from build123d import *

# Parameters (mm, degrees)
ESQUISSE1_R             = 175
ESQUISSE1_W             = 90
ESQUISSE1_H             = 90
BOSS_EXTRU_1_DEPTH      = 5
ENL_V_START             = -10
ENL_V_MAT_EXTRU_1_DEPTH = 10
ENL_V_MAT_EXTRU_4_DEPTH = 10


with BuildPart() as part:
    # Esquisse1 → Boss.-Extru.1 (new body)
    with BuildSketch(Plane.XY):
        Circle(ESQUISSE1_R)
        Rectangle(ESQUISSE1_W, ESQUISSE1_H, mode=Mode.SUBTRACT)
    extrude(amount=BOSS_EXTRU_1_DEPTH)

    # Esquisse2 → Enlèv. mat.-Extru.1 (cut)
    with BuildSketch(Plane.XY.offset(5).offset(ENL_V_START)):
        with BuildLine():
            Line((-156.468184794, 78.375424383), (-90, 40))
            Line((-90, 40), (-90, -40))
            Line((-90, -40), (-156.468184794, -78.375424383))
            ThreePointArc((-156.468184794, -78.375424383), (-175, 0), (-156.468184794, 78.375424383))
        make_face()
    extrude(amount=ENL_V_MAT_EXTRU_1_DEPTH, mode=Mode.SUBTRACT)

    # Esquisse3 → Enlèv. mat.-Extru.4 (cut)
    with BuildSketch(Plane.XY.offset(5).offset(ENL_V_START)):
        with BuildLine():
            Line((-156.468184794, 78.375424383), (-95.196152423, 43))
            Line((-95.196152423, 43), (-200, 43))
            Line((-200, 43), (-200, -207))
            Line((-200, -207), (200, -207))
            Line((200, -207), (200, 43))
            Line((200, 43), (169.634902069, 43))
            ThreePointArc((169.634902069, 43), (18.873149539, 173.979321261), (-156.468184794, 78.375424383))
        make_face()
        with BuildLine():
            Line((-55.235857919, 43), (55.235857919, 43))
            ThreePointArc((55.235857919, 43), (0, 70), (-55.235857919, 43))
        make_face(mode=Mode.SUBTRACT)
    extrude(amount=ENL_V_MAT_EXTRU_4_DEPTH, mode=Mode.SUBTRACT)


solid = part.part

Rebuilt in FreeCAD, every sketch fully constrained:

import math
import FreeCAD as App
import Part
import Sketcher
from FreeCAD import Vector
Q = App.Units.Quantity


def add_polygon(sketch, points):
    """Adds a closed chain of lines whose ends are joined by coincident constraints."""
    first, n = sketch.GeometryCount, len(points)
    for a, b in zip(points, points[1:] + points[:1]):
        sketch.addGeometry(Part.LineSegment(App.Vector(*a, 0), App.Vector(*b, 0)), False)
    for i in range(n):
        sketch.addConstraint(Sketcher.Constraint("Coincident", first + i, 2, first + (i + 1) % n, 1))

doc = App.newDocument("Part")
params = doc.addObject("Spreadsheet::Sheet", "Params")
for row, (alias, value) in enumerate([
    ("sketch1_diameter", "350 mm"),
    ("sketch1_width", "90 mm"),
    ("pad1_length", "5 mm"),
    ("sketch2_radius", "175 mm"),
    ("sketch2_height", "80 mm"),
    ("pocket1_length", "10 mm"),
    ("sketch3_radius", "175 mm"),
    ("sketch3_radius2", "70 mm"),
    ("sketch3_width", "400 mm"),
    ("sketch3_height", "250 mm"),
    ("pocket2_length", "10 mm"),
], start=1):
    params.set(f"A{row}", alias)
    params.set(f"B{row}", "=" + value)
    params.setAlias(f"B{row}", alias)

body = doc.addObject("PartDesign::Body", "Body")

# Sketch on XY plane
sketch1 = body.newObject("Sketcher::SketchObject", "Sketch")
sketch1.AttachmentSupport = (doc.getObject("XY_Plane"), [""])
sketch1.MapMode = "FlatFace"
sketch1.addGeometry(Part.Circle(Vector(0, 0, 0), Vector(0, 0, 1), 175), False)  # 0
add_polygon(sketch1, [(45, -45), (-45, -45), (-45, 45), (45, 45)])  # lines 1-4
sketch1.addConstraint([
    Sketcher.Constraint("Horizontal", 1),
    Sketcher.Constraint("Vertical", 2),
    Sketcher.Constraint("Horizontal", 3),
    Sketcher.Constraint("Vertical", 4),
    Sketcher.Constraint("Coincident", 0, 3, -1, 1),
    Sketcher.Constraint("Symmetric", 1, 2, 3, 2, -1, 1),
    Sketcher.Constraint("Equal", 3, 2),
    Sketcher.Constraint("Diameter", 0, 350.0),
    Sketcher.Constraint("DistanceX", 1, 2, 1, 1, 90.0),
])
sketch1.setExpression("Constraints[11]", "Params.sketch1_diameter")
sketch1.setExpression("Constraints[12]", "Params.sketch1_width")
pad1 = body.newObject("PartDesign::Pad", "Pad")
pad1.Profile = sketch1
pad1.setExpression("Length", "Params.pad1_length")

# Sketch on XY plane
sketch2 = body.newObject("Sketcher::SketchObject", "Sketch001")
sketch2.AttachmentSupport = (doc.getObject("XY_Plane"), [""])
sketch2.MapMode = "FlatFace"
sketch2.AttachmentOffset = App.Placement(Vector(0, 0, -5), App.Rotation())
sketch2.addGeometry([
    Part.LineSegment(Vector(-90, 40, 0), Vector(-156, 78, 0)),
    Part.ArcOfCircle(Part.Circle(Vector(0, 0, 0), Vector(0, 0, 1), 175), math.radians(153), math.radians(207)),
    Part.LineSegment(Vector(-156, -78, 0), Vector(-90, -40, 0)),
    Part.LineSegment(Vector(-90, -40, 0), Vector(-90, 40, 0)),
], False)
sketch2.addConstraint([
    Sketcher.Constraint("Coincident", 0, 2, 1, 1),
    Sketcher.Constraint("Coincident", 1, 2, 2, 1),
    Sketcher.Constraint("Coincident", 2, 2, 3, 1),
    Sketcher.Constraint("Coincident", 3, 2, 0, 1),
    Sketcher.Constraint("Vertical", 3),
    Sketcher.Constraint("Coincident", 1, 3, -1, 1),
    Sketcher.Constraint("Vertical", 0, 2, 1, 2),
    Sketcher.Constraint("Equal", 0, 2),
    Sketcher.Constraint("Radius", 1, 175.0),
    Sketcher.Constraint("DistanceY", 3, 1, 3, 2, 80.0),
    Sketcher.Constraint("Angle", 0, Q("150 deg")),
    Sketcher.Constraint("DistanceX", 2, 2, -1, 1, 90.0),
])
sketch2.setExpression("Constraints[8]", "Params.sketch2_radius")
sketch2.setExpression("Constraints[9]", "Params.sketch2_height")
pocket1 = body.newObject("PartDesign::Pocket", "Pocket")
pocket1.Profile = sketch2
pocket1.setExpression("Length", "Params.pocket1_length")
pocket1.Reversed = True

# Sketch on XY plane
sketch3 = body.newObject("Sketcher::SketchObject", "Sketch002")
sketch3.AttachmentSupport = (doc.getObject("XY_Plane"), [""])
sketch3.MapMode = "FlatFace"
sketch3.AttachmentOffset = App.Placement(Vector(0, 0, -5), App.Rotation())
sketch3.addGeometry([
    Part.LineSegment(Vector(-156, 78, 0), Vector(-95, 43, 0)),  # 0
    Part.LineSegment(Vector(-95, 43, 0), Vector(-200, 43, 0)),  # 1
    Part.LineSegment(Vector(-200, 43, 0), Vector(-200, -207, 0)),  # 2
    Part.LineSegment(Vector(-200, -207, 0), Vector(200, -207, 0)),  # 3
    Part.LineSegment(Vector(200, -207, 0), Vector(200, 43, 0)),  # 4
    Part.LineSegment(Vector(200, 43, 0), Vector(170, 43, 0)),  # 5
    Part.ArcOfCircle(Part.Circle(Vector(0, 0, 0), Vector(0, 0, 1), 175), math.radians(14), math.radians(153)),  # 6
    Part.LineSegment(Vector(55, 43, 0), Vector(-55, 43, 0)),  # 7
    Part.ArcOfCircle(Part.Circle(Vector(0, 0, 0), Vector(0, 0, 1), 70), math.radians(38), math.radians(142)),  # 8
], False)
sketch3.addConstraint([
    Sketcher.Constraint("Coincident", 0, 2, 1, 1),
    Sketcher.Constraint("Coincident", 1, 2, 2, 1),
    Sketcher.Constraint("Coincident", 2, 2, 3, 1),
    Sketcher.Constraint("Coincident", 3, 2, 4, 1),
    Sketcher.Constraint("Coincident", 4, 2, 5, 1),
    Sketcher.Constraint("Coincident", 5, 2, 6, 1),
    Sketcher.Constraint("Coincident", 6, 2, 0, 1),
    Sketcher.Constraint("Coincident", 7, 1, 8, 1),
    Sketcher.Constraint("Coincident", 8, 2, 7, 2),
    Sketcher.Constraint("Horizontal", 1),
    Sketcher.Constraint("Vertical", 2),
    Sketcher.Constraint("Horizontal", 3),
    Sketcher.Constraint("Vertical", 4),
    Sketcher.Constraint("Horizontal", 5),
    Sketcher.Constraint("Horizontal", 7),
    Sketcher.Constraint("Coincident", 6, 3, -1, 1),
    Sketcher.Constraint("Coincident", 8, 3, -1, 1),
    Sketcher.Constraint("Symmetric", 1, 2, 4, 2, -2),
    Sketcher.Constraint("Horizontal", 5, 2, 7, 1),
    Sketcher.Constraint("Radius", 6, 175.0),
    Sketcher.Constraint("Radius", 8, 70.0),
    Sketcher.Constraint("DistanceX", 3, 1, 3, 2, 400.0),
    Sketcher.Constraint("DistanceY", 2, 2, 2, 1, 250.0),
    Sketcher.Constraint("Angle", 0, Q("-30 deg")),
    Sketcher.Constraint("DistanceY", -1, 1, 0, 2, 43.0),
    Sketcher.Constraint("Distance", 0, 70.750849),
])
sketch3.setExpression("Constraints[19]", "Params.sketch3_radius")
sketch3.setExpression("Constraints[20]", "Params.sketch3_radius2")
sketch3.setExpression("Constraints[21]", "Params.sketch3_width")
sketch3.setExpression("Constraints[22]", "Params.sketch3_height")
pocket2 = body.newObject("PartDesign::Pocket", "Pocket001")
pocket2.Profile = sketch3
pocket2.setExpression("Length", "Params.pocket2_length")
pocket2.Reversed = True

doc.recompute()
